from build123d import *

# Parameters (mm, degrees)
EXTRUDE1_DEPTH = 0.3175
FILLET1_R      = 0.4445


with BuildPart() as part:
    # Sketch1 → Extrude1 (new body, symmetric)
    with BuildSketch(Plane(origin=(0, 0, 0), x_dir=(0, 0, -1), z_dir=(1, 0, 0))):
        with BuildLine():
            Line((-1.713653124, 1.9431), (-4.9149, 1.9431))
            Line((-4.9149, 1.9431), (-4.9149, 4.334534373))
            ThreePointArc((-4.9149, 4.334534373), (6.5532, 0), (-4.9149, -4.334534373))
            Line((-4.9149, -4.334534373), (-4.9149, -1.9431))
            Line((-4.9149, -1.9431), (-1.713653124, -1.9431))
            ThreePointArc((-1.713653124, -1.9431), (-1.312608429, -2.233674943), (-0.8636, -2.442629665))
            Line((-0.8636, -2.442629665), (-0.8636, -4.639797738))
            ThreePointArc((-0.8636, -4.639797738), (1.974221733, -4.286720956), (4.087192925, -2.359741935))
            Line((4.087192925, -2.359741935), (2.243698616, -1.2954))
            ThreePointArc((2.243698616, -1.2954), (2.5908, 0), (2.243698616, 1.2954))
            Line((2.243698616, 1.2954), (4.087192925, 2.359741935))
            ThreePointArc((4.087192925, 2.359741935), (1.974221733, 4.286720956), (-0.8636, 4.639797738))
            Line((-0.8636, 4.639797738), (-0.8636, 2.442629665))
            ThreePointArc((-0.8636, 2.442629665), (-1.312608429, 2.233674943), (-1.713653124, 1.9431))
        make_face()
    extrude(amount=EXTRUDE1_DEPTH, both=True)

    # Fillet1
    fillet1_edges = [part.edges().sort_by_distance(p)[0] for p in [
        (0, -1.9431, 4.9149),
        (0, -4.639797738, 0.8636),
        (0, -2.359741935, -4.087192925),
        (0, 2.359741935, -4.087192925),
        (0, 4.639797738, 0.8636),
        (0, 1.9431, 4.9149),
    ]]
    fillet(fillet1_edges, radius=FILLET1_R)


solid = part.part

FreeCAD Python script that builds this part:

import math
import FreeCAD as App
import Part
import Sketcher
Q = App.Units.Quantity


def edges_at(feature, points):
    """Names of the edges that pass closest to the given points."""
    edges = feature.Shape.Edges
    near = lambda p: min(range(len(edges)), key=lambda i: edges[i].distToShape(Part.Vertex(*p))[0])
    return sorted({f"Edge{near(p) + 1}" for p in points})

doc = App.newDocument("Part")
body = doc.addObject("PartDesign::Body", "Body")

# Sketch on YZ plane
sketch1 = body.newObject("Sketcher::SketchObject", "Sketch")
sketch1.AttachmentSupport = (doc.getObject("YZ_Plane"), [""])
sketch1.MapMode = "FlatFace"
sketch1.addGeometry(Part.LineSegment(App.Vector(1.9431, 4.9149, 0), App.Vector(1.9431, 1.713653, 0)), False)
sketch1.addGeometry(Part.ArcOfCircle(Part.Circle(App.Vector(0, 0, 0), App.Vector(0, 0, 1), 2.5908), math.radians(19.471221), math.radians(41.409622)), False)
sketch1.addGeometry(Part.LineSegment(App.Vector(2.44263, 0.8636, 0), App.Vector(4.639798, 0.8636, 0)), False)
sketch1.addGeometry(Part.ArcOfCircle(Part.Circle(App.Vector(0, 0, 0), App.Vector(0, 0, 1), 4.719484), math.radians(-60), math.radians(10.543741)), False)
sketch1.addGeometry(Part.LineSegment(App.Vector(2.359742, -4.087193, 0), App.Vector(1.2954, -2.243699, 0)), False)
sketch1.addGeometry(Part.ArcOfCircle(Part.Circle(App.Vector(0, 0, 0), App.Vector(0, 0, 1), 2.5908), math.radians(-120), math.radians(-60)), False)
sketch1.addGeometry(Part.LineSegment(App.Vector(-1.2954, -2.243699, 0), App.Vector(-2.359742, -4.087193, 0)), False)
sketch1.addGeometry(Part.ArcOfCircle(Part.Circle(App.Vector(0, 0, 0), App.Vector(0, 0, 1), 4.719484), math.radians(169.456259), math.radians(240)), False)
sketch1.addGeometry(Part.LineSegment(App.Vector(-4.639798, 0.8636, 0), App.Vector(-2.44263, 0.8636, 0)), False)
sketch1.addGeometry(Part.ArcOfCircle(Part.Circle(App.Vector(0, 0, 0), App.Vector(0, 0, 1), 2.5908), math.radians(138.590378), math.radians(160.528779)), False)
sketch1.addGeometry(Part.LineSegment(App.Vector(-1.9431, 1.713653, 0), App.Vector(-1.9431, 4.9149, 0)), False)
sketch1.addGeometry(Part.LineSegment(App.Vector(-1.9431, 4.9149, 0), App.Vector(-4.334534, 4.9149, 0)), False)
sketch1.addGeometry(Part.ArcOfCircle(Part.Circle(App.Vector(0, 0, 0), App.Vector(0, 0, 1), 6.5532), math.radians(131.409622), math.radians(408.590378)), False)
sketch1.addGeometry(Part.LineSegment(App.Vector(4.334534, 4.9149, 0), App.Vector(1.9431, 4.9149, 0)), False)
sketch1.addConstraint(Sketcher.Constraint("Coincident", 0, 2, 1, 2))
sketch1.addConstraint(Sketcher.Constraint("Coincident", 1, 1, 2, 1))
sketch1.addConstraint(Sketcher.Constraint("Coincident", 2, 2, 3, 2))
sketch1.addConstraint(Sketcher.Constraint("Coincident", 3, 1, 4, 1))
sketch1.addConstraint(Sketcher.Constraint("Coincident", 4, 2, 5, 2))
sketch1.addConstraint(Sketcher.Constraint("Coincident", 5, 1, 6, 1))
sketch1.addConstraint(Sketcher.Constraint("Coincident", 6, 2, 7, 2))
sketch1.addConstraint(Sketcher.Constraint("Coincident", 7, 1, 8, 1))
sketch1.addConstraint(Sketcher.Constraint("Coincident", 8, 2, 9, 2))
sketch1.addConstraint(Sketcher.Constraint("Coincident", 9, 1, 10, 1))
sketch1.addConstraint(Sketcher.Constraint("Coincident", 10, 2, 11, 1))
sketch1.addConstraint(Sketcher.Constraint("Coincident", 11, 2, 12, 1))
sketch1.addConstraint(Sketcher.Constraint("Coincident", 12, 2, 13, 1))
sketch1.addConstraint(Sketcher.Constraint("Coincident", 13, 2, 0, 1))
sketch1.addConstraint(Sketcher.Constraint("Vertical", 0))
sketch1.addConstraint(Sketcher.Constraint("Horizontal", 2))
sketch1.addConstraint(Sketcher.Constraint("Horizontal", 8))
sketch1.addConstraint(Sketcher.Constraint("Vertical", 10))
sketch1.addConstraint(Sketcher.Constraint("Horizontal", 11))
sketch1.addConstraint(Sketcher.Constraint("Horizontal", 13))
sketch1.addConstraint(Sketcher.Constraint("Coincident", 1, 3, -1, 1))
sketch1.addConstraint(Sketcher.Constraint("Coincident", 3, 3, -1, 1))
sketch1.addConstraint(Sketcher.Constraint("Coincident", 5, 3, -1, 1))
sketch1.addConstraint(Sketcher.Constraint("Coincident", 7, 3, -1, 1))
sketch1.addConstraint(Sketcher.Constraint("Coincident", 9, 3, -1, 1))
sketch1.addConstraint(Sketcher.Constraint("Coincident", 12, 3, -1, 1))
sketch1.addConstraint(Sketcher.Constraint("Equal", 1, 5))
sketch1.addConstraint(Sketcher.Constraint("Equal", 3, 7))
sketch1.addConstraint(Sketcher.Constraint("Equal", 5, 9))
sketch1.addConstraint(Sketcher.Constraint("Symmetric", 10, 2, 13, 2, -2))
sketch1.addConstraint(Sketcher.Constraint("Horizontal", 4, 2, 5, 1))
sketch1.addConstraint(Sketcher.Constraint("Horizontal", 3, 1, 6, 2))
sketch1.addConstraint(Sketcher.Constraint("Horizontal", 2, 2, 7, 1))
sketch1.addConstraint(Sketcher.Constraint("Angle", 4, Q("120 deg")))
sketch1.addConstraint(Sketcher.Constraint("Radius", 1, Q("0.102 in")))
sketch1.addConstraint(Sketcher.Constraint("Radius", 12, Q("0.258 in")))
sketch1.addConstraint(Sketcher.Constraint("DistanceY", -1, 1, 1, 1, Q("0.034 in")))
sketch1.addConstraint(Sketcher.Constraint("DistanceX", -1, 1, 4, 2, Q("0.051 in")))
sketch1.addConstraint(Sketcher.Constraint("DistanceX", 10, 2, 0, 2, Q("0.153 in")))
sketch1.addConstraint(Sketcher.Constraint("DistanceY", -1, 1, 10, 2, Q("0.1935 in")))
sketch1.addConstraint(Sketcher.Constraint("Radius", 3, 4.719484))
pad1 = body.newObject("PartDesign::Pad", "Pad")
pad1.Profile = sketch1
pad1.Length = Q("0.025 in")
pad1.Midplane = True
doc.recompute()

fillet = body.newObject("PartDesign::Fillet", "Fillet")
fillet.Base = (pad1, edges_at(pad1, [
    (0, -1.943, 4.915),
    (0, -4.64, 0.864),
    (0, -2.36, -4.087),
    (0, 2.36, -4.087),
    (0, 4.64, 0.864),
    (0, 1.943, 4.915),
]))
fillet.Radius = Q("0.0175 in")

doc.recompute()
